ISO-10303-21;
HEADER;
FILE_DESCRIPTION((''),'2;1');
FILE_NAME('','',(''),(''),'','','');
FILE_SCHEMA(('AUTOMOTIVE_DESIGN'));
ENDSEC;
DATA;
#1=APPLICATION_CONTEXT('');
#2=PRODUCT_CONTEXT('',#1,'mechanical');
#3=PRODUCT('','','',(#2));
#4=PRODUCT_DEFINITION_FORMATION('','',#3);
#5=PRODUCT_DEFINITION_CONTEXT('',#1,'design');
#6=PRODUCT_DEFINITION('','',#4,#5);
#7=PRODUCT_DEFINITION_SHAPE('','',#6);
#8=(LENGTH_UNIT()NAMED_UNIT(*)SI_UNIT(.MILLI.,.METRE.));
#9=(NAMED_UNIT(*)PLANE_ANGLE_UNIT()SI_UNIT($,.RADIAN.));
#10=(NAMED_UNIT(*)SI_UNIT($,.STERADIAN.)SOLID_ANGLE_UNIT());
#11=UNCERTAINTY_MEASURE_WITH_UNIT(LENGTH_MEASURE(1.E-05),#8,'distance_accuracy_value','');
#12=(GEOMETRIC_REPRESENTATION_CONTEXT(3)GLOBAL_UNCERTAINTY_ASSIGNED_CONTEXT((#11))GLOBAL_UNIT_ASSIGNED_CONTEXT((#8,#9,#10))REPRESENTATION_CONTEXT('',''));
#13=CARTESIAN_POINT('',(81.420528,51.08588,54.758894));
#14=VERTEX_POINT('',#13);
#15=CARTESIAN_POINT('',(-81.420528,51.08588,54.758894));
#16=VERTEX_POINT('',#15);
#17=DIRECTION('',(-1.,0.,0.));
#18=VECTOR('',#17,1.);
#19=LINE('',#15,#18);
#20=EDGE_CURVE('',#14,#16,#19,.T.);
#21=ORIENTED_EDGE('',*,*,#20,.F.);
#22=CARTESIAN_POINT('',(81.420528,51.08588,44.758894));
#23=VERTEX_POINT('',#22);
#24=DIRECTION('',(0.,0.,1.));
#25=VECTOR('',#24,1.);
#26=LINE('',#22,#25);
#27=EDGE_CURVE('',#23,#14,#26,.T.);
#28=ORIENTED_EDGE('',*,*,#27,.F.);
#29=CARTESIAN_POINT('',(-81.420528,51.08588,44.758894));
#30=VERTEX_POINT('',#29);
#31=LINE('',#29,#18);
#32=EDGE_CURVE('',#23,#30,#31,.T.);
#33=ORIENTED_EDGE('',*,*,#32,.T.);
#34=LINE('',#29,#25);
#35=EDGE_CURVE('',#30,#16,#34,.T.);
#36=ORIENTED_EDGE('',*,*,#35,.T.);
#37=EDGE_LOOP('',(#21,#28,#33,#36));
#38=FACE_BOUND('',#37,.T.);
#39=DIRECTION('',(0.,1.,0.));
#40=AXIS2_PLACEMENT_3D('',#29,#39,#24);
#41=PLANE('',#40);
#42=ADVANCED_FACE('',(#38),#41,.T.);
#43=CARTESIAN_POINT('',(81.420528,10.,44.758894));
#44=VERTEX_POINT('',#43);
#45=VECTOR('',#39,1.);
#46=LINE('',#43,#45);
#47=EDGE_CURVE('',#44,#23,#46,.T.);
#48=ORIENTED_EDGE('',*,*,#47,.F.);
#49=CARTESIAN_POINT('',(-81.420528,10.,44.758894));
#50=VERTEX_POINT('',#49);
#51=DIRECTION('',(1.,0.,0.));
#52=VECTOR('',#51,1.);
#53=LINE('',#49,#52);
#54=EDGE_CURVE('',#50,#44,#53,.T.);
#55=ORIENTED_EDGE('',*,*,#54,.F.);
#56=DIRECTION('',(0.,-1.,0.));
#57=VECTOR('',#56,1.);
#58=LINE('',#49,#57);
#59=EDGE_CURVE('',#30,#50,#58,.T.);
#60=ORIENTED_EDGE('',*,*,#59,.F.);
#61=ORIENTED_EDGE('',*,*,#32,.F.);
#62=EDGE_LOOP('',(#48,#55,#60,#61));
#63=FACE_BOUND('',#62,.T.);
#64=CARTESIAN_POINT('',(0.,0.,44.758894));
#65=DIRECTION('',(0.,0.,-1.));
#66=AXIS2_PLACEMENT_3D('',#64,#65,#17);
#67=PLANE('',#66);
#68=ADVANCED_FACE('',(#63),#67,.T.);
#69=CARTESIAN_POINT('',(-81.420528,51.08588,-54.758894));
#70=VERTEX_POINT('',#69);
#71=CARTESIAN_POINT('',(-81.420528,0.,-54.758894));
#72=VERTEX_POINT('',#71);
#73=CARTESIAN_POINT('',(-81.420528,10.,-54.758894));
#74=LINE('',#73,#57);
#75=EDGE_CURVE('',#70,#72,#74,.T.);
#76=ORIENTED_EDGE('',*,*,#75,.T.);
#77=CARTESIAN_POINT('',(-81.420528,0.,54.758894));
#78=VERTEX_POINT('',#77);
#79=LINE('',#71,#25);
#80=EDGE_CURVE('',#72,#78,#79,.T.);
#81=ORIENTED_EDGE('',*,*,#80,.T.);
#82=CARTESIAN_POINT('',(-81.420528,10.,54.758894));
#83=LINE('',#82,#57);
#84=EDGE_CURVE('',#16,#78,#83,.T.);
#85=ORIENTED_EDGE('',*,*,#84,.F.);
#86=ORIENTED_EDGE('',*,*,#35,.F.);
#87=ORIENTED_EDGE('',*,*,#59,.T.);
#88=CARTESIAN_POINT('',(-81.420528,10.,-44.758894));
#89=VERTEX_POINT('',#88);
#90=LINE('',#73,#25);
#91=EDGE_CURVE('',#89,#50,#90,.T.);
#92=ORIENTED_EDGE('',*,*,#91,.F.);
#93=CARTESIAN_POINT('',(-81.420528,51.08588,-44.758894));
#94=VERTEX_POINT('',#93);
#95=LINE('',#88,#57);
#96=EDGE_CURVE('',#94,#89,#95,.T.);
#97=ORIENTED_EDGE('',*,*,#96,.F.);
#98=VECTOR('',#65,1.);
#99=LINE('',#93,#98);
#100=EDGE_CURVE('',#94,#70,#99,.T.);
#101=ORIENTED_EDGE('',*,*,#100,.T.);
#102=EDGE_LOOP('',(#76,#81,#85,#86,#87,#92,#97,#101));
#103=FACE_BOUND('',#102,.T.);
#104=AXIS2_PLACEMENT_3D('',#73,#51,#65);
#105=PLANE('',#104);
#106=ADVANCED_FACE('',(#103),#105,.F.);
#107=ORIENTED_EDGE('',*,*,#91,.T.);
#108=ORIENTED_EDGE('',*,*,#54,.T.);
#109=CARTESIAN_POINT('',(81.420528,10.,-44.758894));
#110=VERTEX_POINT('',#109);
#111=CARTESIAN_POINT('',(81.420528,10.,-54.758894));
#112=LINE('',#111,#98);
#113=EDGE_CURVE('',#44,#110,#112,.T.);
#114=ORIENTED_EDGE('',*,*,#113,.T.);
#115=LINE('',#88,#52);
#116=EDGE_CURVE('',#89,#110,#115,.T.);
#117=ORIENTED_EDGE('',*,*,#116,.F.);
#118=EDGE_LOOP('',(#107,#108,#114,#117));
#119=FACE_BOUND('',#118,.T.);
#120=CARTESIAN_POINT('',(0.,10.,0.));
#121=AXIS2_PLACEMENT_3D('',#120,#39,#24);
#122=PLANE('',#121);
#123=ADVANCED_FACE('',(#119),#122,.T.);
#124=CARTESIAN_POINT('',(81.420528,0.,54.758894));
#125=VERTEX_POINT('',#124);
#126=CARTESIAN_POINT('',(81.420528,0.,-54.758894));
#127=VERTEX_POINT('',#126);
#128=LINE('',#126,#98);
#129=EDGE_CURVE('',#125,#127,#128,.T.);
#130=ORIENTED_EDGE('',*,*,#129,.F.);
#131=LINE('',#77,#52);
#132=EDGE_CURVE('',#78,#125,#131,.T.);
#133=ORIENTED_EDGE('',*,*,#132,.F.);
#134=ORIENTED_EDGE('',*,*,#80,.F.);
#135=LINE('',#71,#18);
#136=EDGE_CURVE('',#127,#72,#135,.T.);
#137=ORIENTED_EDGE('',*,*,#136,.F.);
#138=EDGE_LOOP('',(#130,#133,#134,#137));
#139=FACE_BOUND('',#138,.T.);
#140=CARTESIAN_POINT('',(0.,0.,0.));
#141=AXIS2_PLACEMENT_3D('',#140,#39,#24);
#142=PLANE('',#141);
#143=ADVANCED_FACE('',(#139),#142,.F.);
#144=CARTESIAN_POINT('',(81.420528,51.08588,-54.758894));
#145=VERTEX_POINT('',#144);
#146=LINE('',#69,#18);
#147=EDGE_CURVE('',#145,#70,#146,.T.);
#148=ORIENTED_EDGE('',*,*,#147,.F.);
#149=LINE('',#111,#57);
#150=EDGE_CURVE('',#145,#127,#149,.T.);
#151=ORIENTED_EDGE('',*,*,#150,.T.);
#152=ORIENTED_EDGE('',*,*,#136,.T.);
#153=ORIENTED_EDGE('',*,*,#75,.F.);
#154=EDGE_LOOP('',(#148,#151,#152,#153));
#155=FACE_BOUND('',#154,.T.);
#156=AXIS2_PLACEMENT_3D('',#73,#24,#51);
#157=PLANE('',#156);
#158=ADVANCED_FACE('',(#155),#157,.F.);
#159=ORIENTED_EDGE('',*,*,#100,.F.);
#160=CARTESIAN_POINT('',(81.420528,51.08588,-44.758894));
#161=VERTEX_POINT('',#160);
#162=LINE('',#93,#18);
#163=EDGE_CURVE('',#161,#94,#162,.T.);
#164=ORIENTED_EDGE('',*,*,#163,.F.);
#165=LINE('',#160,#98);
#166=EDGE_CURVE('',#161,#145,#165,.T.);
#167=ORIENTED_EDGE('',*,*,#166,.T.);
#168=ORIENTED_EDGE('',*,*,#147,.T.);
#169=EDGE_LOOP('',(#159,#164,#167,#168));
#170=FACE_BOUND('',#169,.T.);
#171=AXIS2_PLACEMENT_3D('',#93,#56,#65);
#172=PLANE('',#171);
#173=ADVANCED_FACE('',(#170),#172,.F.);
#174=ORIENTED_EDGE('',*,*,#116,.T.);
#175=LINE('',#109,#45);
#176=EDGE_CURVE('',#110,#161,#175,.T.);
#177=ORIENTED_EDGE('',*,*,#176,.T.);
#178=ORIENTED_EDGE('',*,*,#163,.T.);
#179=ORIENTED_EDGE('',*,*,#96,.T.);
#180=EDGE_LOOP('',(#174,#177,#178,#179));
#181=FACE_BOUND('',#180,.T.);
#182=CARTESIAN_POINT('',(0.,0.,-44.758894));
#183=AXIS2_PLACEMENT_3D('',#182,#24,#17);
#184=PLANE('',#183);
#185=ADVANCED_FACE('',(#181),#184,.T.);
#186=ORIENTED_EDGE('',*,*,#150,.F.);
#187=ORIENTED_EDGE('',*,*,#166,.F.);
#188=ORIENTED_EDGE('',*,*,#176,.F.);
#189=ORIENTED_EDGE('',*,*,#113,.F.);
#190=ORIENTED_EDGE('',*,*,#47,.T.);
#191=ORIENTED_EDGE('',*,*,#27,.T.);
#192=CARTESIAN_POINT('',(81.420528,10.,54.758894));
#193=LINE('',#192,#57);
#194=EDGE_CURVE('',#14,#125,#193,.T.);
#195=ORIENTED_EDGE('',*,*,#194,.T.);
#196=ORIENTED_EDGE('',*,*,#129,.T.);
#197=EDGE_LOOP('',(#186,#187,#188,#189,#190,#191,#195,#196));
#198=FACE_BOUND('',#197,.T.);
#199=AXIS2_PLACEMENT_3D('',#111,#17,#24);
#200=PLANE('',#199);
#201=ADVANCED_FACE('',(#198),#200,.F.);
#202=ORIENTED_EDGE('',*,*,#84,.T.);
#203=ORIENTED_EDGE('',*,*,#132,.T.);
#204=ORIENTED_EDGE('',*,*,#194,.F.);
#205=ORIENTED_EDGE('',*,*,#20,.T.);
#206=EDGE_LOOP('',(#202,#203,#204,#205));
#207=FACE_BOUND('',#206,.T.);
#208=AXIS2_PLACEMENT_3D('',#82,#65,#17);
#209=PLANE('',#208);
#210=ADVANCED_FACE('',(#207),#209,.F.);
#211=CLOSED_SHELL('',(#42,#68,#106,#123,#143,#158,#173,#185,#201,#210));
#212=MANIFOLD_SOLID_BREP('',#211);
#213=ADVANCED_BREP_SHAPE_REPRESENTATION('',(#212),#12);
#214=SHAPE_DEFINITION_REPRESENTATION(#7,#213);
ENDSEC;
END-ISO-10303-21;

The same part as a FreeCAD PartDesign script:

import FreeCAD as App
import Part
import Sketcher
from FreeCAD import Vector

doc = App.newDocument("Part")
body = doc.addObject("PartDesign::Body", "Body")

sketch1 = doc.addObject("Sketcher::SketchObject", "Sketch")
body.addObject(sketch1)
sketch1.AttachmentSupport = (doc.XZ_Plane, [""])
sketch1.MapMode = "FlatFace"
sketch1.addGeometry(Part.LineSegment(Vector(-81, -55, 0), Vector(-81, 55, 0)), False)
sketch1.addGeometry(Part.LineSegment(Vector(-81, 55, 0), Vector(81, 55, 0)), False)
sketch1.addGeometry(Part.LineSegment(Vector(81, 55, 0), Vector(81, -55, 0)), False)
sketch1.addGeometry(Part.LineSegment(Vector(81, -55, 0), Vector(-81, -55, 0)), False)
sketch1.addConstraint(Sketcher.Constraint("Coincident", 0, 2, 1, 1))
sketch1.addConstraint(Sketcher.Constraint("Coincident", 1, 2, 2, 1))
sketch1.addConstraint(Sketcher.Constraint("Coincident", 2, 2, 3, 1))
sketch1.addConstraint(Sketcher.Constraint("Coincident", 3, 2, 0, 1))
sketch1.addConstraint(Sketcher.Constraint("Vertical", 0))
sketch1.addConstraint(Sketcher.Constraint("Horizontal", 1))
sketch1.addConstraint(Sketcher.Constraint("Vertical", 2))
sketch1.addConstraint(Sketcher.Constraint("Horizontal", 3))
sketch1.addConstraint(Sketcher.Constraint("Symmetric", 0, 2, 2, 2, -1, 1))
sketch1.addConstraint(Sketcher.Constraint("DistanceY", 0, 1, 0, 2, 109.517788))
sketch1.addConstraint(Sketcher.Constraint("DistanceX", 1, 1, 1, 2, 162.841056))
pad1 = doc.addObject("PartDesign::Pad", "Pad")
body.addObject(pad1)
pad1.Profile = sketch1
pad1.Length = 10
pad1.Reversed = True

sketch2 = doc.addObject("Sketcher::SketchObject", "Sketch001")
body.addObject(sketch2)
sketch2.AttachmentSupport = (doc.XY_Plane, [""])
sketch2.MapMode = "FlatFace"
sketch2.AttachmentOffset = App.Placement(Vector(0, 0, 54.758894), App.Rotation())
sketch2.addGeometry(Part.LineSegment(Vector(-81, 51, 0), Vector(-81, 10, 0)), False)
sketch2.addGeometry(Part.LineSegment(Vector(-81, 10, 0), Vector(81, 10, 0)), False)
sketch2.addGeometry(Part.LineSegment(Vector(81, 10, 0), Vector(81, 51, 0)), False)
sketch2.addGeometry(Part.LineSegment(Vector(81, 51, 0), Vector(-81, 51, 0)), False)
sketch2.addConstraint(Sketcher.Constraint("Coincident", 0, 2, 1, 1))
sketch2.addConstraint(Sketcher.Constraint("Coincident", 1, 2, 2, 1))
sketch2.addConstraint(Sketcher.Constraint("Coincident", 2, 2, 3, 1))
sketch2.addConstraint(Sketcher.Constraint("Coincident", 3, 2, 0, 1))
sketch2.addConstraint(Sketcher.Constraint("Vertical", 0))
sketch2.addConstraint(Sketcher.Constraint("Horizontal", 1))
sketch2.addConstraint(Sketcher.Constraint("Vertical", 2))
sketch2.addConstraint(Sketcher.Constraint("Horizontal", 3))
sketch2.addConstraint(Sketcher.Constraint("DistanceY", -1, 1, 0, 2, 10.0))
sketch2.addConstraint(Sketcher.Constraint("DistanceY", 0, 2, 0, 1, 41.08588))
sketch2.addConstraint(Sketcher.Constraint("DistanceX", 1, 1, 1, 2, 162.841056))
sketch2.addConstraint(Sketcher.Constraint("DistanceX", 0, 2, -1, 1, 81.420528))
pad2 = doc.addObject("PartDesign::Pad", "Pad001")
body.addObject(pad2)
pad2.Profile = sketch2
pad2.Length = 10
pad2.Reversed = True
doc.recompute()

mirrored = doc.addObject("PartDesign::Mirrored", "Mirrored")
body.addObject(mirrored)
mirrored.Originals = [pad2]
mirrored.MirrorPlane = (doc.XY_Plane, [""])
body.Tip = mirrored

doc.recompute()
